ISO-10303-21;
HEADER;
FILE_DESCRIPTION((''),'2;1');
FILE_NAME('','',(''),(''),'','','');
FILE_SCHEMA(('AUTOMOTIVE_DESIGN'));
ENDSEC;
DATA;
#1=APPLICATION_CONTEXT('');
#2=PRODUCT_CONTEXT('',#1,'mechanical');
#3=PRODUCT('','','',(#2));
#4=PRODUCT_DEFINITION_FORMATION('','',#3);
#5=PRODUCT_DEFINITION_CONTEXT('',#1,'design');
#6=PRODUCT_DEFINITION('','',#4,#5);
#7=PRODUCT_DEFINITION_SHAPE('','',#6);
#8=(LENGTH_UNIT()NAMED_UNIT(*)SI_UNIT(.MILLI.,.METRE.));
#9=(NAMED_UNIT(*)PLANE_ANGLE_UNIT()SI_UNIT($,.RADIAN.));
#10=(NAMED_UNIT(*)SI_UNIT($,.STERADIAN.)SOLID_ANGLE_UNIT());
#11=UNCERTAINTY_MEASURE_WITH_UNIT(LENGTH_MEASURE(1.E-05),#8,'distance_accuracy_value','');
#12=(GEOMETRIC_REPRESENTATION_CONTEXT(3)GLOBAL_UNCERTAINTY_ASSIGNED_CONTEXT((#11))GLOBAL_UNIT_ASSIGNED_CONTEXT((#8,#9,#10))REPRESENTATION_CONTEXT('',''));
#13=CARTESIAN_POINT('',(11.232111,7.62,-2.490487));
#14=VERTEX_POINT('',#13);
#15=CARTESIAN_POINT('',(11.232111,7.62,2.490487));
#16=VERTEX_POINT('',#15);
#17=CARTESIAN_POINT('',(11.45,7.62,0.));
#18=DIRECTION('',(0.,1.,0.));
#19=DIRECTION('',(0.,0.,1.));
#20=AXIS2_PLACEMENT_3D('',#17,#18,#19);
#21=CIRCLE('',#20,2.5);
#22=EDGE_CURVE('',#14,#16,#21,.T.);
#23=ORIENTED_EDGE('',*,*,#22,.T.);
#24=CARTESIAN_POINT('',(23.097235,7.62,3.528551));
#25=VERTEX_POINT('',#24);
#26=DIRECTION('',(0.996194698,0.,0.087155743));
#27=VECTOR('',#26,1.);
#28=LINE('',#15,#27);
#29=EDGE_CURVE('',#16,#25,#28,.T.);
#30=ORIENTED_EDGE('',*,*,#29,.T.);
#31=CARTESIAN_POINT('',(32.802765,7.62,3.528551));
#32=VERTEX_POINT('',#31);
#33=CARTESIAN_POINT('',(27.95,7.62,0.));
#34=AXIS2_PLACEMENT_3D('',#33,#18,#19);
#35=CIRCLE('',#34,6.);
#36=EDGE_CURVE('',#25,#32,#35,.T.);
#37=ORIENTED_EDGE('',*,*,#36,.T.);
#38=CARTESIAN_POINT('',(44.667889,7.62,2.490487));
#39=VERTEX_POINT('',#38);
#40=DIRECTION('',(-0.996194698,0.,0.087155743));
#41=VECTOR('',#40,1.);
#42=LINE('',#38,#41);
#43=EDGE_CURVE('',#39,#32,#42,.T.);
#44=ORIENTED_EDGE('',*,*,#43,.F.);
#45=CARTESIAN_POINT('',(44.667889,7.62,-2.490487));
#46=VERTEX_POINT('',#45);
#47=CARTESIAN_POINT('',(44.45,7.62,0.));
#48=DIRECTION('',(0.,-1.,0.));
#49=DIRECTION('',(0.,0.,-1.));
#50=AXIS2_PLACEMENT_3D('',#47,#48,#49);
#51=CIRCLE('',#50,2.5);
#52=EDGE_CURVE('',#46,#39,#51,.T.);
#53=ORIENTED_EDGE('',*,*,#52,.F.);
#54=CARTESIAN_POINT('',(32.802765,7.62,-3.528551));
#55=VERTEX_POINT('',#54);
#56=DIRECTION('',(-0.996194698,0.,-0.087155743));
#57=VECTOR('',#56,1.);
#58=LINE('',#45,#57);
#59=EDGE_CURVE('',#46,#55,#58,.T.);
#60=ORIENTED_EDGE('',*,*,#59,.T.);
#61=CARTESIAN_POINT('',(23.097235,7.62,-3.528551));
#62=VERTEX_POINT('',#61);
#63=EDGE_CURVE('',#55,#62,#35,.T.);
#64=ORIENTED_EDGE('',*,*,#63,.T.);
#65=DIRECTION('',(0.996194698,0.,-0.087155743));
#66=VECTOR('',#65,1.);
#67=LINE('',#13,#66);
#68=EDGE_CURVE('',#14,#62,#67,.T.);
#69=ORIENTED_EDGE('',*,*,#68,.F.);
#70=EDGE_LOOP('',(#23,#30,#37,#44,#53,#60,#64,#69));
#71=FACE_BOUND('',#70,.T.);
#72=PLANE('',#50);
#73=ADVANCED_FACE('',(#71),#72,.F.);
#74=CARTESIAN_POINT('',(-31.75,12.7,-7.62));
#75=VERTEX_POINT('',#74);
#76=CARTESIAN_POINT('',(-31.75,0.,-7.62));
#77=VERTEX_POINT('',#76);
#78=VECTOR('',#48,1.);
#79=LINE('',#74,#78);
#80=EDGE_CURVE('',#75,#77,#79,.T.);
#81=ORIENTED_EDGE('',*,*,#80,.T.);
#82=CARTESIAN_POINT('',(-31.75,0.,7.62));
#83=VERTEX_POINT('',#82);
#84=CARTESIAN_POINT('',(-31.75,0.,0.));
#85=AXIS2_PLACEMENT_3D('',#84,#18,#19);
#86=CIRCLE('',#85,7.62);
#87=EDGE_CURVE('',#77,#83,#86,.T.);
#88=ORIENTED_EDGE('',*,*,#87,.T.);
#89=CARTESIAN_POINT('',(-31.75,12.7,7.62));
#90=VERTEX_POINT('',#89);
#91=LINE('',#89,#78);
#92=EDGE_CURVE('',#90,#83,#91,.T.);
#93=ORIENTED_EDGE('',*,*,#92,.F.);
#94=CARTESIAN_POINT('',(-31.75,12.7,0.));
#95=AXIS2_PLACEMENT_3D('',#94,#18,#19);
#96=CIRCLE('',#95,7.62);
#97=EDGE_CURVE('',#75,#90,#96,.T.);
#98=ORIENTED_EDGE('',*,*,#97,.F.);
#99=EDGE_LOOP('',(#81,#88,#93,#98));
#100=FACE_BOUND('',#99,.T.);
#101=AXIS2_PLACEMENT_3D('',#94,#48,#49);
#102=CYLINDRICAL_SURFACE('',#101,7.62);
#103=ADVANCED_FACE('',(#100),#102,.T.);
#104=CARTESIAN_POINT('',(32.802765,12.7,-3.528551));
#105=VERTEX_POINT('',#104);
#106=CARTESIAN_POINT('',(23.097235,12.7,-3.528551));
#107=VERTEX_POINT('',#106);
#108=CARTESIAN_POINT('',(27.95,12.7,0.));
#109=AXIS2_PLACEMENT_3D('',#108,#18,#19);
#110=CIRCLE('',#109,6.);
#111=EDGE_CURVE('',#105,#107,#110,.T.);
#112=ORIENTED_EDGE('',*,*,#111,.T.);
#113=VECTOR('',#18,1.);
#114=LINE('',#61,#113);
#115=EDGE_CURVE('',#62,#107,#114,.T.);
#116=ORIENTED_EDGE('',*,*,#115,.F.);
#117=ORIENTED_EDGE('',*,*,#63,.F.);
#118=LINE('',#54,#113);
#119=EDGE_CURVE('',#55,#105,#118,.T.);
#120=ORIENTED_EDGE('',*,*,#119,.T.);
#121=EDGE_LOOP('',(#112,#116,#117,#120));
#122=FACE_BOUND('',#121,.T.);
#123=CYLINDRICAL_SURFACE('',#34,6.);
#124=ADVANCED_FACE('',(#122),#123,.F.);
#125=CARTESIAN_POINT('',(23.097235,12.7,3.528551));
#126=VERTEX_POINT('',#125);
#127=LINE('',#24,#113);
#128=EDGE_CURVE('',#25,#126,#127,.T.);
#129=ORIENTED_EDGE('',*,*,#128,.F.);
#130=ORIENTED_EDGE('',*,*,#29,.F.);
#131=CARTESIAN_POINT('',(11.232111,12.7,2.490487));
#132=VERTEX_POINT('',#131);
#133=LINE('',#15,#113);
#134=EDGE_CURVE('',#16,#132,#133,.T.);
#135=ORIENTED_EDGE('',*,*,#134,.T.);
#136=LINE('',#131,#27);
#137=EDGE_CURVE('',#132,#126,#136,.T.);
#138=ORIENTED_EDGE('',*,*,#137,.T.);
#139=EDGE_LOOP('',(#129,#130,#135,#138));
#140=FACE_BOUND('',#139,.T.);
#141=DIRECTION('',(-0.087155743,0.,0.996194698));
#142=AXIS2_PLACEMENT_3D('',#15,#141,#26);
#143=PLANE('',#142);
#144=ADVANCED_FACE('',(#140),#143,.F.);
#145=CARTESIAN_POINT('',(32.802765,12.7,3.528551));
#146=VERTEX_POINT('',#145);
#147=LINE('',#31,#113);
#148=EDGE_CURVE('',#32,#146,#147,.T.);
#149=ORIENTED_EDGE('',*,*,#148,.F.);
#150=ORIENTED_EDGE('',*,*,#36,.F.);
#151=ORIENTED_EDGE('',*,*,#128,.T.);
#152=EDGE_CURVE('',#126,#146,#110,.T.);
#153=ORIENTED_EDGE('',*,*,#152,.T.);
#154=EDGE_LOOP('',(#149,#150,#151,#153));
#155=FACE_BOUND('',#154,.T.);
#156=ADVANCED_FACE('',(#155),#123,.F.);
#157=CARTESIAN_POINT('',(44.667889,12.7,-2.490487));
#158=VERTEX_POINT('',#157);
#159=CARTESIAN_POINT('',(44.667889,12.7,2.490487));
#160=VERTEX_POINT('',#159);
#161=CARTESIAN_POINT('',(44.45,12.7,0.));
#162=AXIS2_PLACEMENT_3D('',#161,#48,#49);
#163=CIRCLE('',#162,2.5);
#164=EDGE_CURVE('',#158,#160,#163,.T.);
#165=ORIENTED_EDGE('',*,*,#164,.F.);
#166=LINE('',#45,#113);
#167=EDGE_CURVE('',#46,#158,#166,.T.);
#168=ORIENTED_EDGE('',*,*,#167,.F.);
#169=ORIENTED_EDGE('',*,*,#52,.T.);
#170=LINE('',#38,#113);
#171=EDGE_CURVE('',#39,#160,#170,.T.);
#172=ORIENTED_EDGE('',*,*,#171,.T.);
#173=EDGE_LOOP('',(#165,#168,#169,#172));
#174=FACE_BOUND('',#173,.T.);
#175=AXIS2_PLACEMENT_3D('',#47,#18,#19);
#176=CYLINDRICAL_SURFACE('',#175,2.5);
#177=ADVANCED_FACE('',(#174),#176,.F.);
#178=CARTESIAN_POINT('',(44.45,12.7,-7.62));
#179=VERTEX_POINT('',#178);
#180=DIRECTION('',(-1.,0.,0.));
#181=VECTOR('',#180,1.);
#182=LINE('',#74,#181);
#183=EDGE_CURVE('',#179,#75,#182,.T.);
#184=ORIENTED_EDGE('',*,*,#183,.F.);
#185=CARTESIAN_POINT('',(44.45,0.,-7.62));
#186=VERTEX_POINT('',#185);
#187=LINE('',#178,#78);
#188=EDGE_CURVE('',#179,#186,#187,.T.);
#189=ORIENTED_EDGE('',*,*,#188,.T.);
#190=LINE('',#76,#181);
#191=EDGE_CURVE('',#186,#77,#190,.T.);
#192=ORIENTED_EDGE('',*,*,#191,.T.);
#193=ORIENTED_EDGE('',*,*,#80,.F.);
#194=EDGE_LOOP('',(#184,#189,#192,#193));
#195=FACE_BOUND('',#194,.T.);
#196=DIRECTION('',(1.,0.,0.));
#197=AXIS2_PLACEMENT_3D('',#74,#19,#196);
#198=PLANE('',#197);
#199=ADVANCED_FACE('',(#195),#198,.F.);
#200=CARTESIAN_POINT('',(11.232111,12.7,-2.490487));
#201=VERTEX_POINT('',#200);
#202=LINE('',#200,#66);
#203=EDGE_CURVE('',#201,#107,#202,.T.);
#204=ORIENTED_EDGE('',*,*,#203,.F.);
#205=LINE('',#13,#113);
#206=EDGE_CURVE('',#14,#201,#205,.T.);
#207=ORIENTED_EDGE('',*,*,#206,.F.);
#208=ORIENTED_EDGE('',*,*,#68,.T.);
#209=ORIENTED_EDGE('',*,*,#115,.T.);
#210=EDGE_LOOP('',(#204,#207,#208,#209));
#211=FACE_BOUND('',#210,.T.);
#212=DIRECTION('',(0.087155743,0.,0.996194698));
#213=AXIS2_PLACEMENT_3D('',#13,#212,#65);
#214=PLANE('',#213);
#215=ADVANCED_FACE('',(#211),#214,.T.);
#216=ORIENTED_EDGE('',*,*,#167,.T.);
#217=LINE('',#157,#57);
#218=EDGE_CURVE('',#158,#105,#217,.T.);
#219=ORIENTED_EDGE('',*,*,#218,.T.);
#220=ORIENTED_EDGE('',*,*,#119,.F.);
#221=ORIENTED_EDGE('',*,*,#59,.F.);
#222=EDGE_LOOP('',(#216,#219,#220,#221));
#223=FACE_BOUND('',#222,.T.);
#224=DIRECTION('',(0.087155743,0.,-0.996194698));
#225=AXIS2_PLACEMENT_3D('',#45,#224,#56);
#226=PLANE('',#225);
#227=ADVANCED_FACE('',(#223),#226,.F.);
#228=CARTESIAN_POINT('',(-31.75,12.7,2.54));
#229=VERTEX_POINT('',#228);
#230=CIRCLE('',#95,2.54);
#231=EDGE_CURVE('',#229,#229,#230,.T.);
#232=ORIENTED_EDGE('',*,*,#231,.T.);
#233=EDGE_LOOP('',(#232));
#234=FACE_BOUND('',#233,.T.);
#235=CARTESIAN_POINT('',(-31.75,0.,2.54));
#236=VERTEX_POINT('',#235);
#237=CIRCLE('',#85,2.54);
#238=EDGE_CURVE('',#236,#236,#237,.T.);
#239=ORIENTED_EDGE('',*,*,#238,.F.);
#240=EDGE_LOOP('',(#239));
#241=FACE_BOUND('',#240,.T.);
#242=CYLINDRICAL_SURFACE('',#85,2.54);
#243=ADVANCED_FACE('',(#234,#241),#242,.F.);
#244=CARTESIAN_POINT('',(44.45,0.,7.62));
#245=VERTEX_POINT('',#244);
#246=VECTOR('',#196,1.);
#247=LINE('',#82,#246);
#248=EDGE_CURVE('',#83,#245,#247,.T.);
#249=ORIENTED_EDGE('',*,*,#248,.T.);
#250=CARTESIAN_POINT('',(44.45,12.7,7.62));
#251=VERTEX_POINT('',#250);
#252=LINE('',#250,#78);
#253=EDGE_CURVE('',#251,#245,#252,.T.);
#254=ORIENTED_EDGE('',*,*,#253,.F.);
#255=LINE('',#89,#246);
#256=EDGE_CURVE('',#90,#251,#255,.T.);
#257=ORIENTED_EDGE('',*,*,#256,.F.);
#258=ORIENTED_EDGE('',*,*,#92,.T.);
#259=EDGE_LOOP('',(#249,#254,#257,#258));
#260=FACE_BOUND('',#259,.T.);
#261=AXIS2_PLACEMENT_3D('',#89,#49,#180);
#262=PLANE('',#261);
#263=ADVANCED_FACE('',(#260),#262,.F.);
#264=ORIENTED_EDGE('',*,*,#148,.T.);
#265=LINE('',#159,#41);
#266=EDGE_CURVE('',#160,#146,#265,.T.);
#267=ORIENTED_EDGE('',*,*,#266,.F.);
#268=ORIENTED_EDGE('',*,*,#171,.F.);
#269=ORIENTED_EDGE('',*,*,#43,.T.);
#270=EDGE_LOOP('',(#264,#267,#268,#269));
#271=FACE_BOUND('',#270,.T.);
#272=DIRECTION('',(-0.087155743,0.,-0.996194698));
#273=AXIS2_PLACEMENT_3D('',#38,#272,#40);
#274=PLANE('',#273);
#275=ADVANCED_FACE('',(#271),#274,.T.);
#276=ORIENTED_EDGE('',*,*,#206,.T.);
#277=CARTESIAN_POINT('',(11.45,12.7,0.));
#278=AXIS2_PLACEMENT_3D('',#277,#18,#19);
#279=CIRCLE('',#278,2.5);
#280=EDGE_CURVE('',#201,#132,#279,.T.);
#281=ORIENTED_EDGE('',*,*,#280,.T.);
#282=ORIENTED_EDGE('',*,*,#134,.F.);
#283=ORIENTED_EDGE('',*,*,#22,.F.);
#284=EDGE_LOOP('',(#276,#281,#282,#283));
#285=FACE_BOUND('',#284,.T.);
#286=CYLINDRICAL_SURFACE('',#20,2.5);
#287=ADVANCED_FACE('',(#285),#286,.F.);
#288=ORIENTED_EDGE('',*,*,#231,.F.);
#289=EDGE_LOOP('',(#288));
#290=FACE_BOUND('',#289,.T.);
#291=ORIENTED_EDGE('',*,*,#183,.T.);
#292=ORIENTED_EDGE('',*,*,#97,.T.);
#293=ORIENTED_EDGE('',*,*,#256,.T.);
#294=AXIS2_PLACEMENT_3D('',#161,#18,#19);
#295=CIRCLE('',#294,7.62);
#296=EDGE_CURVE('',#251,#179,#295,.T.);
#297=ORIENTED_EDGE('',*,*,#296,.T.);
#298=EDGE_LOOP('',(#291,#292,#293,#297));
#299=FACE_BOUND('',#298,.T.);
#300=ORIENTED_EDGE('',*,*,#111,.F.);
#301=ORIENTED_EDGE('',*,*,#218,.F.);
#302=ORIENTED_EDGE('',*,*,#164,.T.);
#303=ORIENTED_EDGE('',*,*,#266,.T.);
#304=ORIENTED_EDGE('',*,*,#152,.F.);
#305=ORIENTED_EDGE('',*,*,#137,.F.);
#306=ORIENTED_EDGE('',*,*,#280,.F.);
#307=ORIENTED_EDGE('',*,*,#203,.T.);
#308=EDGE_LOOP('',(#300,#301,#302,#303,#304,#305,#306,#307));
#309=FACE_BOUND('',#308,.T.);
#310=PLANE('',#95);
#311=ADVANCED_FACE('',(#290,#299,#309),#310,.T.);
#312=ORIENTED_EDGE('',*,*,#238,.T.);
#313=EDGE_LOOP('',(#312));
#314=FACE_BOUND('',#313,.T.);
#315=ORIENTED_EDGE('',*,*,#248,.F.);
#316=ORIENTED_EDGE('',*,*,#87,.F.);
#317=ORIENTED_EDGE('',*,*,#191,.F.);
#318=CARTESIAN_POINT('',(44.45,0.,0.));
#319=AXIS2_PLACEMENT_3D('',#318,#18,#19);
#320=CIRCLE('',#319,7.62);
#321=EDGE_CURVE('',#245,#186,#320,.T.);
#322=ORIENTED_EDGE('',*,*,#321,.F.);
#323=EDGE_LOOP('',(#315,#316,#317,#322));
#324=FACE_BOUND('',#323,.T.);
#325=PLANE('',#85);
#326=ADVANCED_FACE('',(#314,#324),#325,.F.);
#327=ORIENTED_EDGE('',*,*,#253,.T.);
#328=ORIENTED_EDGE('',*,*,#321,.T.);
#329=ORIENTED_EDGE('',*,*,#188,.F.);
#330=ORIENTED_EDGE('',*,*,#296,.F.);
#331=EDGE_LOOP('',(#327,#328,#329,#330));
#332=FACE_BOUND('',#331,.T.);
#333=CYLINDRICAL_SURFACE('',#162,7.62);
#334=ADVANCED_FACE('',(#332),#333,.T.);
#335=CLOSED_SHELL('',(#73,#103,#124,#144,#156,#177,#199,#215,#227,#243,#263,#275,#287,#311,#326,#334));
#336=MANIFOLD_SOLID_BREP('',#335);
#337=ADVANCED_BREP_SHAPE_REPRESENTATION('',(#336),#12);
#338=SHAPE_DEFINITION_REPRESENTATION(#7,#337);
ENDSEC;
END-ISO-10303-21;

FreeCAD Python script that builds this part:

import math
import FreeCAD as App
import Part
import Sketcher
Q = App.Units.Quantity

doc = App.newDocument("Part")
params = doc.addObject("Spreadsheet::Sheet", "Params")
for row, (alias, value) in enumerate([
    ("sketch1_radius", "0.3 in"),
    ("sketch1_width", "3 in"),
    ("pad1_length", "0.5 in"),
    ("sketch2_diameter", "0.2 in"),
    ("pocket2_length", "0.2 in"),
], start=1):
    params.set(f"A{row}", alias)
    params.set(f"B{row}", "=" + value)
    params.setAlias(f"B{row}", alias)

body = doc.addObject("PartDesign::Body", "Body")

sketch1 = body.newObject("Sketcher::SketchObject", "Sketch")
sketch1.AttachmentSupport = (doc.getObject("XZ_Plane"), [""])
sketch1.MapMode = "FlatFace"
sketch1.addGeometry(Part.LineSegment(App.Vector(44, -8, 0), App.Vector(-32, -8, 0)), False)
sketch1.addGeometry(Part.ArcOfCircle(Part.Circle(App.Vector(-32, 0, 0), App.Vector(0, 0, 1), 8), math.radians(90), math.radians(270)), False)
sketch1.addGeometry(Part.LineSegment(App.Vector(-32, 8, 0), App.Vector(44, 8, 0)), False)
sketch1.addGeometry(Part.ArcOfCircle(Part.Circle(App.Vector(44, 0, 0), App.Vector(0, 0, 1), 8), math.radians(-90), math.radians(90)), False)
sketch1.addConstraint(Sketcher.Constraint("Tangent", 0, 2, 1, 2))
sketch1.addConstraint(Sketcher.Constraint("Tangent", 1, 1, 2, 1))
sketch1.addConstraint(Sketcher.Constraint("Tangent", 2, 2, 3, 2))
sketch1.addConstraint(Sketcher.Constraint("Tangent", 3, 1, 0, 1))
sketch1.addConstraint(Sketcher.Constraint("Horizontal", 0))
sketch1.addConstraint(Sketcher.Constraint("Horizontal", 2))
sketch1.addConstraint(Sketcher.Constraint("PointOnObject", 1, 3, -1))
sketch1.addConstraint(Sketcher.Constraint("Radius", 1, Q("0.3 in")))
sketch1.addConstraint(Sketcher.Constraint("DistanceX", 0, 2, 0, 1, Q("3 in")))
sketch1.addConstraint(Sketcher.Constraint("DistanceX", 1, 3, -1, 1, Q("1.25 in")))
sketch1.setExpression("Constraints[7]", "Params.sketch1_radius")
sketch1.setExpression("Constraints[8]", "Params.sketch1_width")
pad1 = body.newObject("PartDesign::Pad", "Pad")
pad1.Profile = sketch1
pad1.setExpression("Length", "Params.pad1_length")
pad1.Reversed = True

sketch2 = body.newObject("Sketcher::SketchObject", "Sketch001")
sketch2.AttachmentSupport = (doc.getObject("XZ_Plane"), [""])
sketch2.MapMode = "FlatFace"
sketch2.AttachmentOffset = App.Placement(App.Vector(0, 0, -0.5 * 25.4), App.Rotation())
sketch2.addGeometry(Part.Circle(App.Vector(-31.8, 0, 0), App.Vector(0, 0, 1), 2.5), False)
sketch2.addConstraint(Sketcher.Constraint("PointOnObject", 0, 3, -1))
sketch2.addConstraint(Sketcher.Constraint("Diameter", 0, Q("0.2 in")))
sketch2.addConstraint(Sketcher.Constraint("DistanceX", 0, 3, -1, 1, Q("1.25 in")))
sketch2.setExpression("Constraints[1]", "Params.sketch2_diameter")
pocket1 = body.newObject("PartDesign::Pocket", "Pocket")
pocket1.Profile = sketch2
pocket1.Type = "ThroughAll"
pocket1.Reversed = True

sketch3 = body.newObject("Sketcher::SketchObject", "Sketch002")
sketch3.AttachmentSupport = (doc.getObject("XZ_Plane"), [""])
sketch3.MapMode = "FlatFace"
sketch3.AttachmentOffset = App.Placement(App.Vector(0, 0, -0.5 * 25.4), App.Rotation())
sketch3.addGeometry(Part.LineSegment(App.Vector(23.1, -3.5, 0), App.Vector(11.2, -2.5, 0)), False)
sketch3.addGeometry(Part.ArcOfCircle(Part.Circle(App.Vector(11.4, 0, 0), App.Vector(0, 0, 1), 2.5), math.radians(95), math.radians(265)), False)
sketch3.addGeometry(Part.LineSegment(App.Vector(11.2, 2.5, 0), App.Vector(23.1, 3.5, 0)), False)
sketch3.addGeometry(Part.ArcOfCircle(Part.Circle(App.Vector(27.9, 0, 0), App.Vector(0, 0, 1), 6), math.radians(36), math.radians(144)), False)
sketch3.addGeometry(Part.LineSegment(App.Vector(32.8, 3.5, 0), App.Vector(44.7, 2.5, 0)), False)
sketch3.addGeometry(Part.ArcOfCircle(Part.Circle(App.Vector(44.5, 0, 0), App.Vector(0, 0, 1), 2.5), math.radians(-85), math.radians(85)), False)
sketch3.addGeometry(Part.LineSegment(App.Vector(44.7, -2.5, 0), App.Vector(32.8, -3.5, 0)), False)
sketch3.addGeometry(Part.ArcOfCircle(Part.Circle(App.Vector(27.9, 0, 0), App.Vector(0, 0, 1), 6), math.radians(-144), math.radians(-36)), False)
sketch3.addConstraint(Sketcher.Constraint("Tangent", 0, 2, 1, 2))
sketch3.addConstraint(Sketcher.Constraint("Tangent", 1, 1, 2, 1))
sketch3.addConstraint(Sketcher.Constraint("Coincident", 2, 2, 3, 2))
sketch3.addConstraint(Sketcher.Constraint("Coincident", 3, 1, 4, 1))
sketch3.addConstraint(Sketcher.Constraint("Tangent", 4, 2, 5, 2))
sketch3.addConstraint(Sketcher.Constraint("Tangent", 5, 1, 6, 1))
sketch3.addConstraint(Sketcher.Constraint("Coincident", 6, 2, 7, 2))
sketch3.addConstraint(Sketcher.Constraint("Coincident", 7, 1, 0, 1))
sketch3.addConstraint(Sketcher.Constraint("Coincident", 7, 3, 3, 3))
sketch3.addConstraint(Sketcher.Constraint("Equal", 1, 5))
sketch3.addConstraint(Sketcher.Constraint("Equal", 3, 7))
sketch3.addConstraint(Sketcher.Constraint("Symmetric", 0, 2, 1, 1, -1))
sketch3.addConstraint(Sketcher.Constraint("Symmetric", 4, 2, 5, 1, -1))
sketch3.addConstraint(Sketcher.Constraint("PointOnObject", 3, 3, -1))
sketch3.addConstraint(Sketcher.Constraint("Parallel", 0, 4))
sketch3.addConstraint(Sketcher.Constraint("Horizontal", 2, 2, 3, 1))
sketch3.addConstraint(Sketcher.Constraint("Angle", 0, Q("175 deg")))
sketch3.addConstraint(Sketcher.Constraint("DistanceX", -1, 1, 5, 3, Q("1.75 in")))
sketch3.addConstraint(Sketcher.Constraint("Radius", 1, Q("2.5 mm")))
sketch3.addConstraint(Sketcher.Constraint("Radius", 3, Q("6 mm")))
sketch3.addConstraint(Sketcher.Constraint("DistanceX", -1, 1, 1, 3, Q("11.45 mm")))
pocket2 = body.newObject("PartDesign::Pocket", "Pocket001")
pocket2.Profile = sketch3
pocket2.setExpression("Length", "Params.pocket2_length")
pocket2.Reversed = True

doc.recompute()
